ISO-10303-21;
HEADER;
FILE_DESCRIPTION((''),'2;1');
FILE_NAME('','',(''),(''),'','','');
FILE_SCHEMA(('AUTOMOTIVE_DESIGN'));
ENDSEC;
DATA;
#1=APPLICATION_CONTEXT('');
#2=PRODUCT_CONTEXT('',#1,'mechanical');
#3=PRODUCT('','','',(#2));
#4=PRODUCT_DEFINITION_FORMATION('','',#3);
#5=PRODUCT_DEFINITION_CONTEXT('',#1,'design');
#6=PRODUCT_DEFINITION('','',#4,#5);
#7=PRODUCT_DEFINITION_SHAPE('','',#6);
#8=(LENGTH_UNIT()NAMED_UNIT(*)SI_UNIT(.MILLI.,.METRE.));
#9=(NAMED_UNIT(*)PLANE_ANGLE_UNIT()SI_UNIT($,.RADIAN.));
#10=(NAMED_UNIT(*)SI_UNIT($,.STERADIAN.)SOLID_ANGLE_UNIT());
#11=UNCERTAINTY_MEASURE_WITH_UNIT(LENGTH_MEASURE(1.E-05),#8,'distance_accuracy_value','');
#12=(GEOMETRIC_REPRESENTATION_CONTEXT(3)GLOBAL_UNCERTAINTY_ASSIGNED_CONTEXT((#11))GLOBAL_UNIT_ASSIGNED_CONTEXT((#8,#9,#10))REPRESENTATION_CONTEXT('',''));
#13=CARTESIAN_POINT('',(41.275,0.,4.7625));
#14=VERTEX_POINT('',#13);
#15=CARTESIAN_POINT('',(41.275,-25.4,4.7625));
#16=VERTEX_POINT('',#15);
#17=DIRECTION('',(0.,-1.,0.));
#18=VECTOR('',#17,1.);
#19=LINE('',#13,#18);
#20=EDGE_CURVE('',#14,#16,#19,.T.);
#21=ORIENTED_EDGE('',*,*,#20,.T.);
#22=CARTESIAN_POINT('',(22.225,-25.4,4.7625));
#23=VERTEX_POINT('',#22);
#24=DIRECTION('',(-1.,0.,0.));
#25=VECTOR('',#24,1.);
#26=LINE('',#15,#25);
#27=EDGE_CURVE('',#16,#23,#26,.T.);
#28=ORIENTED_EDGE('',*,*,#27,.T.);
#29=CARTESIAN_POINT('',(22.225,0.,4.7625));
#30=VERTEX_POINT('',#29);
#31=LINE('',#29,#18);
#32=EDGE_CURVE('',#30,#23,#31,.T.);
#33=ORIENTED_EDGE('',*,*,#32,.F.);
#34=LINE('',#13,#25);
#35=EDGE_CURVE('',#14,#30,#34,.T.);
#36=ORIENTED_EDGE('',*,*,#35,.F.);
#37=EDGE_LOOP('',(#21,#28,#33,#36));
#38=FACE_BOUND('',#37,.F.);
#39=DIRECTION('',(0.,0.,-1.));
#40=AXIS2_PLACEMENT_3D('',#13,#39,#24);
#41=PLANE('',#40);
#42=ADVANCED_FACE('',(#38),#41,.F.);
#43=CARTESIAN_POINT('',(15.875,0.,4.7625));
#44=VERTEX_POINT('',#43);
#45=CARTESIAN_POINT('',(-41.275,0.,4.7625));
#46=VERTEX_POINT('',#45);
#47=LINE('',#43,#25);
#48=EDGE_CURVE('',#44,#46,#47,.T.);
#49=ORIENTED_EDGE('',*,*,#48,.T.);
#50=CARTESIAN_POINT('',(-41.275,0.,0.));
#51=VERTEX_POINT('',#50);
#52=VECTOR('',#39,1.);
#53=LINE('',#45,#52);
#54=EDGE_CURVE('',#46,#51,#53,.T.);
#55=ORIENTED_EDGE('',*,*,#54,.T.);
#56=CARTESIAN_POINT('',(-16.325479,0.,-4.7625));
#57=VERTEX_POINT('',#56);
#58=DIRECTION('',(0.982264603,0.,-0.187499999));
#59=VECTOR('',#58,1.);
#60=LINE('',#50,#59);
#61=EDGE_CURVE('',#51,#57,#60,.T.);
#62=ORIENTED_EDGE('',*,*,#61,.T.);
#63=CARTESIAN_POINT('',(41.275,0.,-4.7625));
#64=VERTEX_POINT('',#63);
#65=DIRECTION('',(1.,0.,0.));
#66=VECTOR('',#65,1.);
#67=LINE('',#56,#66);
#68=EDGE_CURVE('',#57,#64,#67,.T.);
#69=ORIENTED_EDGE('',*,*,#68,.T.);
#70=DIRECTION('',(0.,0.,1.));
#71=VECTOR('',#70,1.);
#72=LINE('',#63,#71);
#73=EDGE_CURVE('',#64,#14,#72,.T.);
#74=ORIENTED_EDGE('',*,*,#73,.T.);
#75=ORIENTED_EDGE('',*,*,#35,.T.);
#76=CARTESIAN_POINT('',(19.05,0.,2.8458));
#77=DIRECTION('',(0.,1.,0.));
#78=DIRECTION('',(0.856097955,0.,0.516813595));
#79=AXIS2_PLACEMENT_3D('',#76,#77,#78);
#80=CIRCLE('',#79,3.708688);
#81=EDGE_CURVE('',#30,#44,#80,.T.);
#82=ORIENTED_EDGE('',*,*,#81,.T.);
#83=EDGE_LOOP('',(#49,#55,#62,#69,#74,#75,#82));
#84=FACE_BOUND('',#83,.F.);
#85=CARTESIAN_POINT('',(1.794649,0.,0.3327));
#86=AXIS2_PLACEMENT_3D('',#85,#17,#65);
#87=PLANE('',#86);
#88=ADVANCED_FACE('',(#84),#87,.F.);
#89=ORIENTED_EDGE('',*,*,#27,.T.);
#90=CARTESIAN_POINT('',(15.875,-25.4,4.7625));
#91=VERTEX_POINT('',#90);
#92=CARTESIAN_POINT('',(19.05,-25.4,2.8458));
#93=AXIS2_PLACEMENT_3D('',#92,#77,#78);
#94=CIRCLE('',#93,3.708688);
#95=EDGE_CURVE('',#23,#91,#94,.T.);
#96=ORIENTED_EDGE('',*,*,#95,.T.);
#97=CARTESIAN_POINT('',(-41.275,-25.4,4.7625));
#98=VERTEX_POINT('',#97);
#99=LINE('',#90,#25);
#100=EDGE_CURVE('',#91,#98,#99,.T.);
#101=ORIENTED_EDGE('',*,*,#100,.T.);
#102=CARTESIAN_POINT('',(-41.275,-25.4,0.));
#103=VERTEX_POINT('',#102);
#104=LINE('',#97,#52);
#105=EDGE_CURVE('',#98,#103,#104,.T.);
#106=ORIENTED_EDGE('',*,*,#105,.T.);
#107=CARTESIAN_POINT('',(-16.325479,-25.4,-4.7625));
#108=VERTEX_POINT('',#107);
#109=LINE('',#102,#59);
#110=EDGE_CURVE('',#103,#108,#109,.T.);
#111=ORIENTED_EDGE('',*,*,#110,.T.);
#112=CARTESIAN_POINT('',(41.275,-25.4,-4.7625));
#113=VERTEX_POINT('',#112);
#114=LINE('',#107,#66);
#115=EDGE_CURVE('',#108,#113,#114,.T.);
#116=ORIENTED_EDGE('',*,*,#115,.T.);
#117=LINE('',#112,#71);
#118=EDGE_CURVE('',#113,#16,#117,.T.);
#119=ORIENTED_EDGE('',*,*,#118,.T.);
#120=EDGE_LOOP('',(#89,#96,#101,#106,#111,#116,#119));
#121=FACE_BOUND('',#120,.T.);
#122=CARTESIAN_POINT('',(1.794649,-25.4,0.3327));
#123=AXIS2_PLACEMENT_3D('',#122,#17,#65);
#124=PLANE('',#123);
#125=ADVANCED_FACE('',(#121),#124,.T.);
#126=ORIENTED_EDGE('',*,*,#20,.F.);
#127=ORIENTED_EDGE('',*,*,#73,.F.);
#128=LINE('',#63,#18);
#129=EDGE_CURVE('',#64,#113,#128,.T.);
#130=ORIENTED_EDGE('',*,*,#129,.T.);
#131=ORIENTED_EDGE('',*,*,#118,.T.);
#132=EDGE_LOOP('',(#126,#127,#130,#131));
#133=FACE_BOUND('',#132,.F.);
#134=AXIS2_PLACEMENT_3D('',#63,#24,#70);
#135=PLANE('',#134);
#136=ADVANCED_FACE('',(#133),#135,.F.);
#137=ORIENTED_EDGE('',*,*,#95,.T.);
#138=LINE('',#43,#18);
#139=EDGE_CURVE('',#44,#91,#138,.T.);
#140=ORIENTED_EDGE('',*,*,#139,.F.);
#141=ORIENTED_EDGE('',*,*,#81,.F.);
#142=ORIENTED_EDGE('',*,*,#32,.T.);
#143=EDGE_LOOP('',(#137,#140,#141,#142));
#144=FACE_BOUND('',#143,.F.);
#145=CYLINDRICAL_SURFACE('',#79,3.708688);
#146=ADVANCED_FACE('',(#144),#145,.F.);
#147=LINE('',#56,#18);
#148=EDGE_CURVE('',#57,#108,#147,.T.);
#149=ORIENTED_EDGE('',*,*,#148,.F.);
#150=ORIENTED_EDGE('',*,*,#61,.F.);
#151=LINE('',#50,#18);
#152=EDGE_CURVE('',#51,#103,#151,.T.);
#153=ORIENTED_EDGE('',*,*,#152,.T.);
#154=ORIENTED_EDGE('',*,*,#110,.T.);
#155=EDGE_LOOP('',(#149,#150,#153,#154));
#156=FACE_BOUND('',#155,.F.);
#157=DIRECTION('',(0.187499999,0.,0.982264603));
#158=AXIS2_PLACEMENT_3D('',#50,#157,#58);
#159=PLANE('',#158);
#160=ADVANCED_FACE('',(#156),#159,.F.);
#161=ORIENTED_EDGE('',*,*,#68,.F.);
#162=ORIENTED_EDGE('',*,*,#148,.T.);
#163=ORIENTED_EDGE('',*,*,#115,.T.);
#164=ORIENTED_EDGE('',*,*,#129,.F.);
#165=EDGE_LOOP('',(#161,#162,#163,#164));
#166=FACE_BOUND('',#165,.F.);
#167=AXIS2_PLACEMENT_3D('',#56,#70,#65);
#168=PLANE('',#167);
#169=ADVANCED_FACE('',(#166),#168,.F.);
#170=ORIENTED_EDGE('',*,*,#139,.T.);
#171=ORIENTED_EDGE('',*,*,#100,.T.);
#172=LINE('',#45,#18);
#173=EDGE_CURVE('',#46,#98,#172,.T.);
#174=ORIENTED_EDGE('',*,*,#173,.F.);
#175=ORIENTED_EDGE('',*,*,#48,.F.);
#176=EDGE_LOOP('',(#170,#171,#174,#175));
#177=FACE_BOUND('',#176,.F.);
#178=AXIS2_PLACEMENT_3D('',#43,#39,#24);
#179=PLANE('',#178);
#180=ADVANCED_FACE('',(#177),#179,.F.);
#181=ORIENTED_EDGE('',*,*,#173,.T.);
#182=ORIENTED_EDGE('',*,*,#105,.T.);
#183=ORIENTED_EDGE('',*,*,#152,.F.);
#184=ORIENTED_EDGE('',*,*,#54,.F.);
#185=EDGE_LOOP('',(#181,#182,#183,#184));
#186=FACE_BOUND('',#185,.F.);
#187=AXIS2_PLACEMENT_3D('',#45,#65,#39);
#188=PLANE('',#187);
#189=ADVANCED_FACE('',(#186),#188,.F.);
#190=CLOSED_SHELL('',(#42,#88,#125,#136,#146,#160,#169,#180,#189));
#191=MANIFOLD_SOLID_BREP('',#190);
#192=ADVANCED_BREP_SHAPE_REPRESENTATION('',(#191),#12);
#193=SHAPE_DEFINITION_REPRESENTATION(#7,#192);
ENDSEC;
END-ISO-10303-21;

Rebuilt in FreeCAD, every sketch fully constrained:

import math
import FreeCAD as App
import Part
import Sketcher
Q = App.Units.Quantity

doc = App.newDocument("Part")
body = doc.addObject("PartDesign::Body", "Body")

sketch1 = doc.addObject("Sketcher::SketchObject", "Sketch")
body.addObject(sketch1)
sketch1.AttachmentSupport = (doc.XZ_Plane, [""])
sketch1.MapMode = "FlatFace"
sketch1.addGeometry([
    Part.LineSegment(App.Vector(-16.3, -4.8, 0), App.Vector(41.3, -4.8, 0)),
    Part.LineSegment(App.Vector(41.3, -4.8, 0), App.Vector(41.3, 4.8, 0)),
    Part.LineSegment(App.Vector(41.3, 4.8, 0), App.Vector(22.2, 4.8, 0)),
    Part.ArcOfCircle(Part.Circle(App.Vector(19.1, 2.8, 0), App.Vector(0, 0, 1), 3.7), math.radians(149), math.radians(391)),
    Part.LineSegment(App.Vector(15.9, 4.8, 0), App.Vector(-41.3, 4.8, 0)),
    Part.LineSegment(App.Vector(-41.3, 4.8, 0), App.Vector(-41.3, 0, 0)),
    Part.LineSegment(App.Vector(-41.3, 0, 0), App.Vector(-16.3, -4.8, 0)),
], False)
sketch1.addConstraint([
    Sketcher.Constraint("Coincident", 0, 2, 1, 1),
    Sketcher.Constraint("Coincident", 1, 2, 2, 1),
    Sketcher.Constraint("Coincident", 2, 2, 3, 2),
    Sketcher.Constraint("Coincident", 3, 1, 4, 1),
    Sketcher.Constraint("Coincident", 4, 2, 5, 1),
    Sketcher.Constraint("Coincident", 5, 2, 6, 1),
    Sketcher.Constraint("Coincident", 6, 2, 0, 1),
    Sketcher.Constraint("Horizontal", 0),
    Sketcher.Constraint("Vertical", 1),
    Sketcher.Constraint("Horizontal", 2),
    Sketcher.Constraint("Horizontal", 4),
    Sketcher.Constraint("Vertical", 5),
    Sketcher.Constraint("Symmetric", 0, 2, 4, 2, -1, 1),
    Sketcher.Constraint("PointOnObject", 5, 2, -1),
    Sketcher.Constraint("Horizontal", 2, 2, 3, 1),
    Sketcher.Constraint("Distance", 6, Q("1 in")),
    Sketcher.Constraint("DistanceX", 3, 1, 1, 2, Q("1 in")),
    Sketcher.Constraint("DistanceX", 2, 2, 2, 1, Q("0.75 in")),
    Sketcher.Constraint("DistanceX", 4, 2, 4, 1, Q("2.25 in")),
    Sketcher.Constraint("DistanceY", 1, 1, 1, 2, Q("0.375 in")),
    Sketcher.Constraint("Radius", 3, 3.708688),
])
pad1 = doc.addObject("PartDesign::Pad", "Pad")
body.addObject(pad1)
pad1.Profile = sketch1
pad1.Length = Q("1 in")

doc.recompute()
